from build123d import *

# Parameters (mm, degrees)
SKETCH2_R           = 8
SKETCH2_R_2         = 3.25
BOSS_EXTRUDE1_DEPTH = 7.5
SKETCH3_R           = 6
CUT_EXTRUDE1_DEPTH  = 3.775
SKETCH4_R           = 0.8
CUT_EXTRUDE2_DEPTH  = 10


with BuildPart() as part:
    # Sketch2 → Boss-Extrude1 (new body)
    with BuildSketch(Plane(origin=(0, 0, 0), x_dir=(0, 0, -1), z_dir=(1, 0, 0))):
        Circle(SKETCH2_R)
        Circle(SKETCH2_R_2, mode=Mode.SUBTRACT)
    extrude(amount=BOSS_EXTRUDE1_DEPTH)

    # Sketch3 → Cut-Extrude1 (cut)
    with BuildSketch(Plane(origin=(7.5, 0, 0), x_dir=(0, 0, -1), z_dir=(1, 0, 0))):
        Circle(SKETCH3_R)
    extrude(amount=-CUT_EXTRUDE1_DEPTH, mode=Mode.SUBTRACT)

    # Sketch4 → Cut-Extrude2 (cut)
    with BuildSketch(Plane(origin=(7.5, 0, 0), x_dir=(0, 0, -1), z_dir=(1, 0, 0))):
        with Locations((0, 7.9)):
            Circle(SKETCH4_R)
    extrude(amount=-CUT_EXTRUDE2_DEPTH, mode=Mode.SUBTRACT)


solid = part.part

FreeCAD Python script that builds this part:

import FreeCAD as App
import Part
import Sketcher

V = App.Vector
Q = App.Units.Quantity

doc = App.newDocument("Part")
params = doc.addObject("Spreadsheet::Sheet", "Params")
for row, (alias, value) in enumerate([
    ("sketch1_diameter", "16 mm"),
    ("sketch1_diameter2", "6.5 mm"),
    ("pad1_length", "7.5 mm"),
    ("sketch2_diameter", "12 mm"),
    ("pocket1_length", "3.775 mm"),
    ("sketch3_diameter", "1.6 mm"),
    ("pocket2_length", "10 mm"),
], start=1):
    params.set(f"A{row}", alias)
    params.set(f"B{row}", "=" + value)
    params.setAlias(f"B{row}", alias)

body = doc.addObject("PartDesign::Body", "Body")

# Sketch on YZ plane
sketch1 = doc.addObject("Sketcher::SketchObject", "Sketch")
body.addObject(sketch1)
sketch1.AttachmentSupport = (doc.YZ_Plane, [""])
sketch1.MapMode = "FlatFace"
sketch1.addGeometry(Part.Circle(V(0, 0, 0), V(0, 0, 1), 8), False)
sketch1.addGeometry(Part.Circle(V(0, 0, 0), V(0, 0, 1), 3.25), False)
sketch1.addConstraint(Sketcher.Constraint("Coincident", 0, 3, -1, 1))
sketch1.addConstraint(Sketcher.Constraint("Coincident", 1, 3, -1, 1))
sketch1.addConstraint(Sketcher.Constraint("Diameter", 0, Q("16 mm")))
sketch1.addConstraint(Sketcher.Constraint("Diameter", 1, Q("6.5 mm")))
sketch1.setExpression("Constraints[2]", "Params.sketch1_diameter")
sketch1.setExpression("Constraints[3]", "Params.sketch1_diameter2")
pad1 = doc.addObject("PartDesign::Pad", "Pad")
body.addObject(pad1)
pad1.Profile = sketch1
pad1.setExpression("Length", "Params.pad1_length")

# Sketch on YZ plane
sketch2 = doc.addObject("Sketcher::SketchObject", "Sketch001")
body.addObject(sketch2)
sketch2.AttachmentSupport = (doc.YZ_Plane, [""])
sketch2.MapMode = "FlatFace"
sketch2.AttachmentOffset = App.Placement(V(0, 0, 7.5), App.Rotation())
sketch2.addGeometry(Part.Circle(V(0, 0, 0), V(0, 0, 1), 6), False)
sketch2.addConstraint(Sketcher.Constraint("Coincident", 0, 3, -1, 1))
sketch2.addConstraint(Sketcher.Constraint("Diameter", 0, Q("12 mm")))
sketch2.setExpression("Constraints[1]", "Params.sketch2_diameter")
pocket1 = doc.addObject("PartDesign::Pocket", "Pocket")
body.addObject(pocket1)
pocket1.Profile = sketch2
pocket1.setExpression("Length", "Params.pocket1_length")

# Sketch on YZ plane
sketch3 = doc.addObject("Sketcher::SketchObject", "Sketch002")
body.addObject(sketch3)
sketch3.AttachmentSupport = (doc.YZ_Plane, [""])
sketch3.MapMode = "FlatFace"
sketch3.AttachmentOffset = App.Placement(V(0, 0, 7.5), App.Rotation())
sketch3.addGeometry(Part.Circle(V(7.9, 0, 0), V(0, 0, 1), 0.8), False)
sketch3.addConstraint(Sketcher.Constraint("PointOnObject", 0, 3, -1))
sketch3.addConstraint(Sketcher.Constraint("Diameter", 0, Q("1.6 mm")))
sketch3.addConstraint(Sketcher.Constraint("DistanceX", -1, 1, 0, 3, Q("7.9 mm")))
sketch3.setExpression("Constraints[1]", "Params.sketch3_diameter")
pocket2 = doc.addObject("PartDesign::Pocket", "Pocket001")
body.addObject(pocket2)
pocket2.Profile = sketch3
pocket2.setExpression("Length", "Params.pocket2_length")

doc.recompute()
